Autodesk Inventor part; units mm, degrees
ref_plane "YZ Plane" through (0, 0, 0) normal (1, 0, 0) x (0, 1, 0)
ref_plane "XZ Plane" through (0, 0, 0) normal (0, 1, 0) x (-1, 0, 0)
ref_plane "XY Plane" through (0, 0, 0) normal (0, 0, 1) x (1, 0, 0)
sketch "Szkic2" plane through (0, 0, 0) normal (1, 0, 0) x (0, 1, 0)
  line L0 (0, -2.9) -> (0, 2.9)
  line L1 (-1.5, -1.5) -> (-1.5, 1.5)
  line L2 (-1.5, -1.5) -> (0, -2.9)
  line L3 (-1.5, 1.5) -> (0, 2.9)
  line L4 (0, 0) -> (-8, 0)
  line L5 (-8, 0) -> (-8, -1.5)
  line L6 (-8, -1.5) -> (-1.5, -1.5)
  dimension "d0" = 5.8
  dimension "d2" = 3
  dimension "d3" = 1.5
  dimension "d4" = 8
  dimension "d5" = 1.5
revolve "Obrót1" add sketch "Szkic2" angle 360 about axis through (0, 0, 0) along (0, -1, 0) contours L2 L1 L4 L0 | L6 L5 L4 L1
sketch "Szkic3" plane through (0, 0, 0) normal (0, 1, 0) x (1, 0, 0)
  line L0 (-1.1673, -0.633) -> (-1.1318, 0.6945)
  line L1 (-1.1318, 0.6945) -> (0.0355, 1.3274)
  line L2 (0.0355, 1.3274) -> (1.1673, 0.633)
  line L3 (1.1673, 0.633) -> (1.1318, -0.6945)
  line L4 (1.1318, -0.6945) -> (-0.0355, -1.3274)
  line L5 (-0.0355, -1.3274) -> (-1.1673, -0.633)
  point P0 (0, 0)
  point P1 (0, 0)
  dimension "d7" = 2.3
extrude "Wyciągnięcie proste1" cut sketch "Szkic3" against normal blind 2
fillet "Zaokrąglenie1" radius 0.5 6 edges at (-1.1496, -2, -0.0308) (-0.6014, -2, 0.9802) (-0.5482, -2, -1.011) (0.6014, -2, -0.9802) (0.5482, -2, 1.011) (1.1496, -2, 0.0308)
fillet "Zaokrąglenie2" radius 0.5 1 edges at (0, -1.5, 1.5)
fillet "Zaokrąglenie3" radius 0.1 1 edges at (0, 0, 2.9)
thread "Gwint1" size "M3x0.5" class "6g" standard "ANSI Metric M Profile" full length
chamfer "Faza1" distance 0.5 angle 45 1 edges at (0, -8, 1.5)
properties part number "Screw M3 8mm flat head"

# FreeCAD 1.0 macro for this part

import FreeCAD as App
import Part
import Sketcher
from FreeCAD import Vector
Q = App.Units.Quantity


def edges_at(feature, points):
    """Names of the edges that pass closest to the given points."""
    edges = feature.Shape.Edges
    near = lambda p: min(range(len(edges)), key=lambda i: edges[i].distToShape(Part.Vertex(*p))[0])
    return sorted({f"Edge{near(p) + 1}" for p in points})

doc = App.newDocument("Part")
body = doc.addObject("PartDesign::Body", "Body")

sketch1 = body.newObject("Sketcher::SketchObject", "Sketch")
sketch1.AttachmentSupport = (doc.getObject("YZ_Plane"), [""])
sketch1.MapMode = "FlatFace"
sketch1.addGeometry([
    Part.LineSegment(Vector(-1.5, -1.5, 0), Vector(0, -2.9, 0)),
    Part.LineSegment(Vector(0, -2.9, 0), Vector(0, 0, 0)),
    Part.LineSegment(Vector(0, 0, 0), Vector(-8, 0, 0)),
    Part.LineSegment(Vector(-8, 0, 0), Vector(-8, -1.5, 0)),
    Part.LineSegment(Vector(-8, -1.5, 0), Vector(-1.5, -1.5, 0)),
], False)
sketch1.addConstraint([
    Sketcher.Constraint("Coincident", 0, 2, 1, 1),
    Sketcher.Constraint("Coincident", 1, 2, 2, 1),
    Sketcher.Constraint("Coincident", 2, 2, 3, 1),
    Sketcher.Constraint("Coincident", 3, 2, 4, 1),
    Sketcher.Constraint("Coincident", 4, 2, 0, 1),
    Sketcher.Constraint("Vertical", 1),
    Sketcher.Constraint("Horizontal", 2),
    Sketcher.Constraint("Vertical", 3),
    Sketcher.Constraint("Horizontal", 4),
    Sketcher.Constraint("Coincident", 1, 2, -1, 1),
    Sketcher.Constraint("DistanceX", 2, 2, 2, 1, 8.0),
    Sketcher.Constraint("DistanceY", 3, 2, 3, 1, 1.5),
    Sketcher.Constraint("DistanceX", 4, 2, -1, 1, 1.5),
    Sketcher.Constraint("DistanceY", 1, 1, 1, 2, 2.9),
])
revolution = body.newObject("PartDesign::Revolution", "Revolution")
revolution.Profile = sketch1
revolution.ReferenceAxis = (sketch1, ["H_Axis"])
revolution.Angle = 360

sketch2 = body.newObject("Sketcher::SketchObject", "Sketch001")
sketch2.AttachmentSupport = (doc.getObject("XZ_Plane"), [""])
sketch2.MapMode = "FlatFace"
sketch2.addGeometry([
    Part.LineSegment(Vector(-1.1, -0.7, 0), Vector(-1.2, 0.6, 0)),
    Part.LineSegment(Vector(-1.2, 0.6, 0), Vector(0, 1.3, 0)),
    Part.LineSegment(Vector(0, 1.3, 0), Vector(1.1, 0.7, 0)),
    Part.LineSegment(Vector(1.1, 0.7, 0), Vector(1.2, -0.6, 0)),
    Part.LineSegment(Vector(1.2, -0.6, 0), Vector(0, -1.3, 0)),
    Part.LineSegment(Vector(0, -1.3, 0), Vector(-1.1, -0.7, 0)),
], False)
sketch2.addConstraint([
    Sketcher.Constraint("Coincident", 0, 2, 1, 1),
    Sketcher.Constraint("Coincident", 1, 2, 2, 1),
    Sketcher.Constraint("Coincident", 2, 2, 3, 1),
    Sketcher.Constraint("Coincident", 3, 2, 4, 1),
    Sketcher.Constraint("Coincident", 4, 2, 5, 1),
    Sketcher.Constraint("Coincident", 5, 2, 0, 1),
    Sketcher.Constraint("Symmetric", 0, 2, 3, 2, -1, 1),
    Sketcher.Constraint("Symmetric", 1, 2, 4, 2, -1, 1),
    Sketcher.Constraint("Symmetric", 2, 2, 5, 2, -1, 1),
    Sketcher.Constraint("Equal", 0, 1),
    Sketcher.Constraint("Equal", 1, 2),
    Sketcher.Constraint("Angle", 1, Q("31.5306 deg")),
    Sketcher.Constraint("Distance", 0, 1.328),
    Sketcher.Constraint("DistanceY", -1, 1, 0, 2, 0.633),
    Sketcher.Constraint("DistanceY", 2, 2, 1, 2, 0.633),
])
pocket1 = body.newObject("PartDesign::Pocket", "Pocket")
pocket1.Profile = sketch2
pocket1.Length = 2
pocket1.Reversed = True
doc.recompute()

fillet = body.newObject("PartDesign::Fillet", "Fillet")
fillet.Base = (pocket1, edges_at(pocket1, [
    (-1.15, -2, -0.031),
    (-0.601, -2, 0.98),
    (-0.548, -2, -1.011),
    (0.601, -2, -0.98),
    (0.548, -2, 1.011),
    (1.15, -2, 0.031),
]))
fillet.Radius = 0.5
doc.recompute()

fillet2 = body.newObject("PartDesign::Fillet", "Fillet001")
fillet2.Base = (fillet, edges_at(fillet, [(0, -1.5, 1.5)]))
fillet2.Radius = 0.5
doc.recompute()

fillet3 = body.newObject("PartDesign::Fillet", "Fillet002")
fillet3.Base = (fillet2, edges_at(fillet2, [(0, 0, 2.9)]))
fillet3.Radius = 0.1
doc.recompute()

chamfer = body.newObject("PartDesign::Chamfer", "Chamfer")
chamfer.Base = (fillet3, edges_at(fillet3, [(0, -8, 1.5)]))
chamfer.Size = 0.5

doc.recompute()
